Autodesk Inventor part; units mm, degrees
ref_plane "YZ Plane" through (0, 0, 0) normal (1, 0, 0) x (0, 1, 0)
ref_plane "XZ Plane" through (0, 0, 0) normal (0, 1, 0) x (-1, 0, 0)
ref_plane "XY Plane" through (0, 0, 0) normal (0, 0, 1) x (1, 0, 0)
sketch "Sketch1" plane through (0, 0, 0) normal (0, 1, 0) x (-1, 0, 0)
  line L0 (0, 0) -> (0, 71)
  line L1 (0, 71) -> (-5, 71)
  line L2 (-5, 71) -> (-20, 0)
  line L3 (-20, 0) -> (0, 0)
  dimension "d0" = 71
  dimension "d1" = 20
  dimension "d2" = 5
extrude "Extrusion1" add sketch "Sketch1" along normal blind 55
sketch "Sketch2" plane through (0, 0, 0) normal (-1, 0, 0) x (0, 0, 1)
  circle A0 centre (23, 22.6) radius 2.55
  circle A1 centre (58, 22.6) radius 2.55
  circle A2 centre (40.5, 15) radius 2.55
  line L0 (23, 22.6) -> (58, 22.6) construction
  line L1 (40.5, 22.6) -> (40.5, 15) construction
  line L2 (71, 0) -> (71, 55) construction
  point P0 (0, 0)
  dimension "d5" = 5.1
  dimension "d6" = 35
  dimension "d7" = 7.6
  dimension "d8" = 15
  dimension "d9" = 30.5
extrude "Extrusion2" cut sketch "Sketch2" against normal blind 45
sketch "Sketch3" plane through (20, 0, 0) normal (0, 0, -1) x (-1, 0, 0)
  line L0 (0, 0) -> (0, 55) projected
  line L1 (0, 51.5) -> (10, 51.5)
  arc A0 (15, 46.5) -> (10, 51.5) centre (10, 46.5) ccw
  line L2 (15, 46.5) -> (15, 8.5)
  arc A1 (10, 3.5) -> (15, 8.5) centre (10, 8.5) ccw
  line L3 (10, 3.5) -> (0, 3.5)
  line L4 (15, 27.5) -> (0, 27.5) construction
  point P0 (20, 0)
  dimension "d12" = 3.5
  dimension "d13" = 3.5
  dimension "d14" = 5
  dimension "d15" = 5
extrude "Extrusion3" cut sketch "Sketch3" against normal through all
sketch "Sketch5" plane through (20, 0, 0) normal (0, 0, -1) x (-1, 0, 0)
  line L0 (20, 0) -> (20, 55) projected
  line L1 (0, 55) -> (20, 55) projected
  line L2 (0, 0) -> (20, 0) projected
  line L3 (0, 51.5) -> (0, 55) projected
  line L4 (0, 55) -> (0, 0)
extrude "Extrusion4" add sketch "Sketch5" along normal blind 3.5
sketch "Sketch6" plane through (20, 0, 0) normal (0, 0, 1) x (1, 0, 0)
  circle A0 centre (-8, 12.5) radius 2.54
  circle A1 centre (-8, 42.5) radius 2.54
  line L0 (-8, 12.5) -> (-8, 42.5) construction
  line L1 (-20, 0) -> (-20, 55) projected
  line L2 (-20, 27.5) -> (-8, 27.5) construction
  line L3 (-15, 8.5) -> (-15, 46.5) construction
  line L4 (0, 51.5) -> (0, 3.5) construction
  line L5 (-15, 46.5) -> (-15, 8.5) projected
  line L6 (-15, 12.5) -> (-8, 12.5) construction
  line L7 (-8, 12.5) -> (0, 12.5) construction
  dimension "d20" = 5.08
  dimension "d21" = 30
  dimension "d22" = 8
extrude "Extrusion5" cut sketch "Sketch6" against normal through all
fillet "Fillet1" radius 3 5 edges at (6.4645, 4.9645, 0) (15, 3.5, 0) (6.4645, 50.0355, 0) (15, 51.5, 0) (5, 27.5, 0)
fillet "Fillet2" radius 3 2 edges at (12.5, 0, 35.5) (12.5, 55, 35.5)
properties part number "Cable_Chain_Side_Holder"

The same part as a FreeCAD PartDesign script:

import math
import FreeCAD as App
import Part
import Sketcher
from FreeCAD import Vector
Q = App.Units.Quantity


def edges_at(feature, points):
    """Names of the edges that pass closest to the given points."""
    edges = feature.Shape.Edges
    near = lambda p: min(range(len(edges)), key=lambda i: edges[i].distToShape(Part.Vertex(*p))[0])
    return sorted({f"Edge{near(p) + 1}" for p in points})

doc = App.newDocument("Part")
body = doc.addObject("PartDesign::Body", "Body")

# Sketch on XZ plane
sketch1 = body.newObject("Sketcher::SketchObject", "Sketch")
sketch1.AttachmentSupport = (doc.getObject("XZ_Plane"), [""])
sketch1.MapMode = "FlatFace"
sketch1.addGeometry([
    Part.LineSegment(Vector(20, 0, 0), Vector(0, 0, 0)),
    Part.LineSegment(Vector(0, 0, 0), Vector(0, 71, 0)),
    Part.LineSegment(Vector(0, 71, 0), Vector(5, 71, 0)),
    Part.LineSegment(Vector(5, 71, 0), Vector(20, 0, 0)),
], False)
sketch1.addConstraint([
    Sketcher.Constraint("Coincident", 0, 2, 1, 1),
    Sketcher.Constraint("Coincident", 1, 2, 2, 1),
    Sketcher.Constraint("Coincident", 2, 2, 3, 1),
    Sketcher.Constraint("Coincident", 3, 2, 0, 1),
    Sketcher.Constraint("Horizontal", 0),
    Sketcher.Constraint("Vertical", 1),
    Sketcher.Constraint("Horizontal", 2),
    Sketcher.Constraint("Coincident", 0, 2, -1, 1),
    Sketcher.Constraint("DistanceX", 0, 2, 0, 1, Q("20 mm")),
    Sketcher.Constraint("DistanceX", 2, 1, 2, 2, Q("5 mm")),
    Sketcher.Constraint("DistanceY", 1, 1, 1, 2, Q("71 mm")),
])
pad1 = body.newObject("PartDesign::Pad", "Pad")
pad1.Profile = sketch1
pad1.Length = 55
pad1.Reversed = True

# Sketch on YZ plane
sketch2 = body.newObject("Sketcher::SketchObject", "Sketch001")
sketch2.AttachmentSupport = (doc.getObject("YZ_Plane"), [""])
sketch2.MapMode = "FlatFace"
sketch2.addGeometry([
    Part.Circle(Vector(22.6, 23, 0), Vector(0, 0, 1), 2.5),
    Part.Circle(Vector(22.6, 58, 0), Vector(0, 0, 1), 2.5),
    Part.Circle(Vector(15, 40.5, 0), Vector(0, 0, 1), 2.5),
], False)
sketch2.addConstraint([
    Sketcher.Constraint("Equal", 0, 1),
    Sketcher.Constraint("Equal", 1, 2),
    Sketcher.Constraint("Vertical", 0, 3, 1, 3),
    Sketcher.Constraint("Diameter", 0, Q("5.1 mm")),
    Sketcher.Constraint("DistanceX", -1, 1, 2, 3, Q("15 mm")),
    Sketcher.Constraint("DistanceY", 0, 3, 1, 3, Q("35 mm")),
    Sketcher.Constraint("DistanceX", 2, 3, 0, 3, Q("7.6 mm")),
    Sketcher.Constraint("DistanceY", -1, 1, 0, 3, Q("23 mm")),
    Sketcher.Constraint("DistanceY", -1, 1, 2, 3, Q("40.5 mm")),
])
pocket1 = body.newObject("PartDesign::Pocket", "Pocket")
pocket1.Profile = sketch2
pocket1.Length = 45
pocket1.Reversed = True

# Sketch on XY plane
sketch3 = body.newObject("Sketcher::SketchObject", "Sketch002")
sketch3.AttachmentSupport = (doc.getObject("XY_Plane"), [""])
sketch3.MapMode = "FlatFace"
sketch3.addGeometry([
    Part.LineSegment(Vector(20, 52, 0), Vector(20, 4, 0)),  # 0
    Part.LineSegment(Vector(20, 4, 0), Vector(10, 4, 0)),  # 1
    Part.ArcOfCircle(Part.Circle(Vector(10, 8, 0), Vector(0, 0, 1), 5), math.radians(180), math.radians(270)),  # 2
    Part.LineSegment(Vector(5, 8, 0), Vector(5, 46, 0)),  # 3
    Part.ArcOfCircle(Part.Circle(Vector(10, 46, 0), Vector(0, 0, 1), 5), math.radians(90), math.radians(180)),  # 4
    Part.LineSegment(Vector(10, 52, 0), Vector(20, 52, 0)),  # 5
], False)
sketch3.addConstraint([
    Sketcher.Constraint("Coincident", 0, 2, 1, 1),
    Sketcher.Constraint("Tangent", 1, 2, 2, 2),
    Sketcher.Constraint("Tangent", 2, 1, 3, 1),
    Sketcher.Constraint("Tangent", 3, 2, 4, 2),
    Sketcher.Constraint("Tangent", 4, 1, 5, 1),
    Sketcher.Constraint("Coincident", 5, 2, 0, 1),
    Sketcher.Constraint("Vertical", 0),
    Sketcher.Constraint("Horizontal", 1),
    Sketcher.Constraint("Vertical", 3),
    Sketcher.Constraint("Horizontal", 5),
    Sketcher.Constraint("Equal", 2, 4),
    Sketcher.Constraint("Radius", 2, Q("5 mm")),
    Sketcher.Constraint("DistanceX", -1, 1, 2, 1, Q("5 mm")),
    Sketcher.Constraint("DistanceY", -1, 1, 0, 2, Q("3.5 mm")),
    Sketcher.Constraint("DistanceX", 1, 2, 1, 1, Q("10 mm")),
    Sketcher.Constraint("DistanceY", 0, 2, 0, 1, Q("48 mm")),
])
pocket2 = body.newObject("PartDesign::Pocket", "Pocket001")
pocket2.Profile = sketch3
pocket2.Type = "ThroughAll"
pocket2.Reversed = True

# Sketch on XY plane
sketch4 = body.newObject("Sketcher::SketchObject", "Sketch003")
sketch4.AttachmentSupport = (doc.getObject("XY_Plane"), [""])
sketch4.MapMode = "FlatFace"
sketch4.addGeometry([
    Part.LineSegment(Vector(20, 0, 0), Vector(0, 0, 0)),
    Part.LineSegment(Vector(0, 0, 0), Vector(0, 55, 0)),
    Part.LineSegment(Vector(0, 55, 0), Vector(20, 55, 0)),
    Part.LineSegment(Vector(20, 55, 0), Vector(20, 0, 0)),
], False)
sketch4.addConstraint([
    Sketcher.Constraint("Coincident", 0, 2, 1, 1),
    Sketcher.Constraint("Coincident", 1, 2, 2, 1),
    Sketcher.Constraint("Coincident", 2, 2, 3, 1),
    Sketcher.Constraint("Coincident", 3, 2, 0, 1),
    Sketcher.Constraint("Horizontal", 0),
    Sketcher.Constraint("Vertical", 1),
    Sketcher.Constraint("Horizontal", 2),
    Sketcher.Constraint("Vertical", 3),
    Sketcher.Constraint("Coincident", 0, 2, -1, 1),
    Sketcher.Constraint("DistanceX", 0, 2, 0, 1, Q("20 mm")),
    Sketcher.Constraint("DistanceY", 1, 1, 1, 2, Q("55 mm")),
])
pad2 = body.newObject("PartDesign::Pad", "Pad001")
pad2.Profile = sketch4
pad2.Length = 3.5
pad2.Reversed = True

# Sketch on XY plane
sketch5 = body.newObject("Sketcher::SketchObject", "Sketch004")
sketch5.AttachmentSupport = (doc.getObject("XY_Plane"), [""])
sketch5.MapMode = "FlatFace"
sketch5.addGeometry([
    Part.Circle(Vector(12, 12.5, 0), Vector(0, 0, 1), 2.5),
    Part.Circle(Vector(12, 42.5, 0), Vector(0, 0, 1), 2.5),
], False)
sketch5.addConstraint([
    Sketcher.Constraint("Equal", 0, 1),
    Sketcher.Constraint("Vertical", 0, 3, 1, 3),
    Sketcher.Constraint("Diameter", 0, Q("5.08 mm")),
    Sketcher.Constraint("DistanceY", 0, 3, 1, 3, Q("30 mm")),
    Sketcher.Constraint("DistanceX", -1, 1, 0, 3, Q("12 mm")),
    Sketcher.Constraint("DistanceY", -1, 1, 0, 3, Q("12.5 mm")),
])
pocket3 = body.newObject("PartDesign::Pocket", "Pocket002")
pocket3.Profile = sketch5
pocket3.Type = "ThroughAll"
doc.recompute()

fillet = body.newObject("PartDesign::Fillet", "Fillet")
fillet.Base = (pocket3, edges_at(pocket3, [
    (6.465, 4.965, 0),
    (15, 3.5, 0),
    (6.465, 50.035, 0),
    (15, 51.5, 0),
    (5, 27.5, 0),
]))
fillet.Radius = 3
doc.recompute()

fillet2 = body.newObject("PartDesign::Fillet", "Fillet001")
fillet2.Base = (fillet, edges_at(fillet, [(12.5, 0, 35.5), (12.5, 55, 35.5)]))
fillet2.Radius = 3

doc.recompute()
